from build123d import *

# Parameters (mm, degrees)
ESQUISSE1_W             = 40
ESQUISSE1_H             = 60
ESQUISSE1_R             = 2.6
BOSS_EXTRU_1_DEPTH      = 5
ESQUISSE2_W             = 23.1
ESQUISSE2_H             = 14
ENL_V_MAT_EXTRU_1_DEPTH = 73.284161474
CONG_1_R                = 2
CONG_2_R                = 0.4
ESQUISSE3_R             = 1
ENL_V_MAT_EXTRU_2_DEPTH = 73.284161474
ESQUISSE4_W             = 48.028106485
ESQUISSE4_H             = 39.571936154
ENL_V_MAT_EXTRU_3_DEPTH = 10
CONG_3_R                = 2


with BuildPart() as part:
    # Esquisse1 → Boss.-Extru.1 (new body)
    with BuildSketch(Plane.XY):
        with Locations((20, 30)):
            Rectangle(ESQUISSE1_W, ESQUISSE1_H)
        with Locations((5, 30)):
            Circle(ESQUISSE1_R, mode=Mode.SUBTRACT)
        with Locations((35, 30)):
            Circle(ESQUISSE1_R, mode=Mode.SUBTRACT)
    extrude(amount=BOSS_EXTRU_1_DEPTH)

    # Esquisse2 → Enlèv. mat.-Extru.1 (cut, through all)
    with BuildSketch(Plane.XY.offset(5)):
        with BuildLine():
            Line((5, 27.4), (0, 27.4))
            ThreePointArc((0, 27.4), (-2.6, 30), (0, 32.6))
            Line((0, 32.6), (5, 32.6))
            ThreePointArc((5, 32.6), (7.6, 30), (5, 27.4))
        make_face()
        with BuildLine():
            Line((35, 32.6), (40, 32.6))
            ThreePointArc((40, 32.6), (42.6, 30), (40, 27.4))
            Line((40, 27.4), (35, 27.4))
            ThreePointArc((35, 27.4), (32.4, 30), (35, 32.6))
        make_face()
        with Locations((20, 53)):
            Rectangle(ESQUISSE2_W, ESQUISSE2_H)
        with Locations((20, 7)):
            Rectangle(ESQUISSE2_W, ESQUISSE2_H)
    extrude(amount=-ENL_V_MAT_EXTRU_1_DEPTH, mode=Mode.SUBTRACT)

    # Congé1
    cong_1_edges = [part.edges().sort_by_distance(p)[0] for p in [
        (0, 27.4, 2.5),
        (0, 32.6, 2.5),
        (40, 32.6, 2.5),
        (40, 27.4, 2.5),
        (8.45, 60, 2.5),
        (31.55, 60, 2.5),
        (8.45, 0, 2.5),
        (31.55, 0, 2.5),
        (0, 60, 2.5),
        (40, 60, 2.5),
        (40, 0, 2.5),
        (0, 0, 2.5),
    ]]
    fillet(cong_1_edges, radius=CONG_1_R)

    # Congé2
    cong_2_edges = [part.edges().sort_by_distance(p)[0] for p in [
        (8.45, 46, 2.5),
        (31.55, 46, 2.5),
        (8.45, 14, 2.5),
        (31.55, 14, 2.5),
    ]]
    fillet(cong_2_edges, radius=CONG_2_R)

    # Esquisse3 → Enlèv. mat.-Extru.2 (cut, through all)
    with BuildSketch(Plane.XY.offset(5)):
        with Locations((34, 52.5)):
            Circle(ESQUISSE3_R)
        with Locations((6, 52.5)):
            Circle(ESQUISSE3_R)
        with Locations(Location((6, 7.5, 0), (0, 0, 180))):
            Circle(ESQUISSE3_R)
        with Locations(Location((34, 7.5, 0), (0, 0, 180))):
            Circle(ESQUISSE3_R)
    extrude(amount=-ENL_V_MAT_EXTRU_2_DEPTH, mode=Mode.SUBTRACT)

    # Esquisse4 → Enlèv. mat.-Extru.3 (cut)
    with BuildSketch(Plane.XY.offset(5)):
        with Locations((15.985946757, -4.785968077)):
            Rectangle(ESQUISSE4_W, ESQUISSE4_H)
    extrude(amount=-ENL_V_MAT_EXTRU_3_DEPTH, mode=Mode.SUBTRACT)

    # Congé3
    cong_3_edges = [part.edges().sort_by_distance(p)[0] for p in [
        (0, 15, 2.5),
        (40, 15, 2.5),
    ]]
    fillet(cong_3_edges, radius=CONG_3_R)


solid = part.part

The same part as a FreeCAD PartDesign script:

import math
import FreeCAD as App
import Part
import Sketcher
from FreeCAD import Vector


def edges_at(feature, points):
    """Names of the edges that pass closest to the given points."""
    edges = feature.Shape.Edges
    near = lambda p: min(range(len(edges)), key=lambda i: edges[i].distToShape(Part.Vertex(*p))[0])
    return sorted({f"Edge{near(p) + 1}" for p in points})


def add_polygon(sketch, points):
    """Adds a closed chain of lines whose ends are joined by coincident constraints."""
    first, n = sketch.GeometryCount, len(points)
    for a, b in zip(points, points[1:] + points[:1]):
        sketch.addGeometry(Part.LineSegment(App.Vector(*a, 0), App.Vector(*b, 0)), False)
    for i in range(n):
        sketch.addConstraint(Sketcher.Constraint("Coincident", first + i, 2, first + (i + 1) % n, 1))

doc = App.newDocument("Part")
body = doc.addObject("PartDesign::Body", "Body")

# Sketch on XY plane
sketch1 = body.newObject("Sketcher::SketchObject", "Sketch")
sketch1.AttachmentSupport = (doc.getObject("XY_Plane"), [""])
sketch1.MapMode = "FlatFace"
add_polygon(sketch1, [(0, 60), (0, 0), (40, 0), (40, 60)])  # lines 0-3
sketch1.addGeometry(Part.Circle(Vector(5, 30, 0), Vector(0, 0, 1), 2.6), False)  # 4
sketch1.addGeometry(Part.Circle(Vector(35, 30, 0), Vector(0, 0, 1), 2.6), False)  # 5
sketch1.addConstraint(Sketcher.Constraint("Vertical", 0))
sketch1.addConstraint(Sketcher.Constraint("Horizontal", 1))
sketch1.addConstraint(Sketcher.Constraint("Vertical", 2))
sketch1.addConstraint(Sketcher.Constraint("Horizontal", 3))
sketch1.addConstraint(Sketcher.Constraint("Coincident", 0, 2, -1, 1))
sketch1.addConstraint(Sketcher.Constraint("Equal", 4, 5))
sketch1.addConstraint(Sketcher.Constraint("Horizontal", 4, 3, 5, 3))
sketch1.addConstraint(Sketcher.Constraint("Diameter", 4, 5.2))
sketch1.addConstraint(Sketcher.Constraint("DistanceX", 1, 1, 1, 2, 40.0))
sketch1.addConstraint(Sketcher.Constraint("DistanceY", 0, 2, 0, 1, 60.0))
sketch1.addConstraint(Sketcher.Constraint("DistanceX", -1, 1, 4, 3, 5.0))
sketch1.addConstraint(Sketcher.Constraint("DistanceY", -1, 1, 4, 3, 30.0))
sketch1.addConstraint(Sketcher.Constraint("DistanceX", -1, 1, 5, 3, 35.0))
pad1 = body.newObject("PartDesign::Pad", "Pad")
pad1.Profile = sketch1
pad1.Length = 5

# Sketch on XY plane
sketch2 = body.newObject("Sketcher::SketchObject", "Sketch001")
sketch2.AttachmentSupport = (doc.getObject("XY_Plane"), [""])
sketch2.MapMode = "FlatFace"
sketch2.AttachmentOffset = App.Placement(Vector(0, 0, 5), App.Rotation())
sketch2.addGeometry(Part.LineSegment(Vector(0, 27.4, 0), Vector(5, 27.4, 0)), False)  # 0
sketch2.addGeometry(Part.ArcOfCircle(Part.Circle(Vector(5, 30, 0), Vector(0, 0, 1), 2.6), math.radians(-90), math.radians(90)), False)  # 1
sketch2.addGeometry(Part.LineSegment(Vector(5, 32.6, 0), Vector(0, 32.6, 0)), False)  # 2
sketch2.addGeometry(Part.ArcOfCircle(Part.Circle(Vector(0, 30, 0), Vector(0, 0, 1), 2.6), math.radians(90), math.radians(270)), False)  # 3
sketch2.addGeometry(Part.LineSegment(Vector(40, 32.6, 0), Vector(35, 32.6, 0)), False)  # 4
sketch2.addGeometry(Part.ArcOfCircle(Part.Circle(Vector(35, 30, 0), Vector(0, 0, 1), 2.6), math.radians(90), math.radians(270)), False)  # 5
sketch2.addGeometry(Part.LineSegment(Vector(35, 27.4, 0), Vector(40, 27.4, 0)), False)  # 6
sketch2.addGeometry(Part.ArcOfCircle(Part.Circle(Vector(40, 30, 0), Vector(0, 0, 1), 2.6), math.radians(-90), math.radians(90)), False)  # 7
add_polygon(sketch2, [(8.45, 60), (8.45, 46), (31.55, 46), (31.55, 60)])  # lines 8-11
add_polygon(sketch2, [(8.45, 14), (8.45, 0), (31.55, 0), (31.55, 14)])  # lines 12-15
sketch2.addConstraint(Sketcher.Constraint("Tangent", 0, 2, 1, 1))
sketch2.addConstraint(Sketcher.Constraint("Tangent", 1, 2, 2, 1))
sketch2.addConstraint(Sketcher.Constraint("Tangent", 2, 2, 3, 1))
sketch2.addConstraint(Sketcher.Constraint("Tangent", 3, 2, 0, 1))
sketch2.addConstraint(Sketcher.Constraint("Tangent", 4, 2, 5, 1))
sketch2.addConstraint(Sketcher.Constraint("Tangent", 5, 2, 6, 1))
sketch2.addConstraint(Sketcher.Constraint("Tangent", 6, 2, 7, 1))
sketch2.addConstraint(Sketcher.Constraint("Tangent", 7, 2, 4, 1))
sketch2.addConstraint(Sketcher.Constraint("Horizontal", 0))
sketch2.addConstraint(Sketcher.Constraint("Horizontal", 2))
sketch2.addConstraint(Sketcher.Constraint("Horizontal", 4))
sketch2.addConstraint(Sketcher.Constraint("Horizontal", 6))
sketch2.addConstraint(Sketcher.Constraint("Vertical", 8))
sketch2.addConstraint(Sketcher.Constraint("Horizontal", 9))
sketch2.addConstraint(Sketcher.Constraint("Vertical", 10))
sketch2.addConstraint(Sketcher.Constraint("Horizontal", 11))
sketch2.addConstraint(Sketcher.Constraint("Vertical", 12))
sketch2.addConstraint(Sketcher.Constraint("Horizontal", 13))
sketch2.addConstraint(Sketcher.Constraint("Vertical", 14))
sketch2.addConstraint(Sketcher.Constraint("Horizontal", 15))
sketch2.addConstraint(Sketcher.Constraint("Equal", 3, 5))
sketch2.addConstraint(Sketcher.Constraint("PointOnObject", 3, 3, -2))
sketch2.addConstraint(Sketcher.Constraint("PointOnObject", 12, 2, -1))
sketch2.addConstraint(Sketcher.Constraint("Horizontal", 3, 3, 5, 3))
sketch2.addConstraint(Sketcher.Constraint("Vertical", 11, 2, 12, 2))
sketch2.addConstraint(Sketcher.Constraint("Vertical", 10, 2, 13, 2))
sketch2.addConstraint(Sketcher.Constraint("Equal", 2, 4))
sketch2.addConstraint(Sketcher.Constraint("Equal", 10, 12))
sketch2.addConstraint(Sketcher.Constraint("Radius", 1, 2.6))
sketch2.addConstraint(Sketcher.Constraint("DistanceX", 0, 1, 0, 2, 5.0))
sketch2.addConstraint(Sketcher.Constraint("DistanceY", 8, 2, 8, 1, 14.0))
sketch2.addConstraint(Sketcher.Constraint("DistanceX", 9, 1, 9, 2, 23.1))
sketch2.addConstraint(Sketcher.Constraint("DistanceY", -1, 1, 1, 3, 30.0))
sketch2.addConstraint(Sketcher.Constraint("DistanceX", -1, 1, 5, 3, 35.0))
sketch2.addConstraint(Sketcher.Constraint("DistanceY", -1, 1, 8, 2, 46.0))
sketch2.addConstraint(Sketcher.Constraint("DistanceX", -1, 1, 8, 2, 8.45))
pocket1 = body.newObject("PartDesign::Pocket", "Pocket")
pocket1.Profile = sketch2
pocket1.Type = "ThroughAll"
doc.recompute()

fillet = body.newObject("PartDesign::Fillet", "Fillet")
fillet.Base = (pocket1, edges_at(pocket1, [
    (0, 27.4, 2.5),
    (0, 32.6, 2.5),
    (40, 32.6, 2.5),
    (40, 27.4, 2.5),
    (8.45, 60, 2.5),
    (31.55, 60, 2.5),
    (8.45, 0, 2.5),
    (31.55, 0, 2.5),
    (0, 60, 2.5),
    (40, 60, 2.5),
    (40, 0, 2.5),
    (0, 0, 2.5),
]))
fillet.Radius = 2
doc.recompute()

fillet2 = body.newObject("PartDesign::Fillet", "Fillet001")
fillet2.Base = (fillet, edges_at(fillet, [
    (8.45, 46, 2.5),
    (31.55, 46, 2.5),
    (8.45, 14, 2.5),
    (31.55, 14, 2.5),
]))
fillet2.Radius = 0.4

# Sketch on XY plane
sketch3 = body.newObject("Sketcher::SketchObject", "Sketch002")
sketch3.AttachmentSupport = (doc.getObject("XY_Plane"), [""])
sketch3.MapMode = "FlatFace"
sketch3.AttachmentOffset = App.Placement(Vector(0, 0, 5), App.Rotation())
sketch3.addGeometry(Part.Circle(Vector(34, 52.5, 0), Vector(0, 0, 1), 1), False)
sketch3.addGeometry(Part.Circle(Vector(6, 52.5, 0), Vector(0, 0, 1), 1), False)
sketch3.addGeometry(Part.Circle(Vector(6, 7.5, 0), Vector(0, 0, 1), 1), False)
sketch3.addGeometry(Part.Circle(Vector(34, 7.5, 0), Vector(0, 0, 1), 1), False)
sketch3.addConstraint(Sketcher.Constraint("Equal", 0, 1))
sketch3.addConstraint(Sketcher.Constraint("Equal", 1, 2))
sketch3.addConstraint(Sketcher.Constraint("Equal", 2, 3))
sketch3.addConstraint(Sketcher.Constraint("Horizontal", 0, 3, 1, 3))
sketch3.addConstraint(Sketcher.Constraint("Horizontal", 2, 3, 3, 3))
sketch3.addConstraint(Sketcher.Constraint("Vertical", 1, 3, 2, 3))
sketch3.addConstraint(Sketcher.Constraint("Vertical", 0, 3, 3, 3))
sketch3.addConstraint(Sketcher.Constraint("Diameter", 0, 2.0))
sketch3.addConstraint(Sketcher.Constraint("DistanceX", -1, 1, 0, 3, 34.0))
sketch3.addConstraint(Sketcher.Constraint("DistanceX", -1, 1, 1, 3, 6.0))
sketch3.addConstraint(Sketcher.Constraint("DistanceY", 2, 3, 1, 3, 45.0))
sketch3.addConstraint(Sketcher.Constraint("DistanceY", -1, 1, 0, 3, 52.5))
pocket2 = body.newObject("PartDesign::Pocket", "Pocket001")
pocket2.Profile = sketch3
pocket2.Type = "ThroughAll"

# Sketch on XY plane
sketch4 = body.newObject("Sketcher::SketchObject", "Sketch003")
sketch4.AttachmentSupport = (doc.getObject("XY_Plane"), [""])
sketch4.MapMode = "FlatFace"
sketch4.AttachmentOffset = App.Placement(Vector(0, 0, 5), App.Rotation())
add_polygon(sketch4, [(-8.028106, 15), (-8.028106, -24.571936), (40, -24.571936), (40, 15)])  # lines 0-3
sketch4.addConstraint(Sketcher.Constraint("Vertical", 0))
sketch4.addConstraint(Sketcher.Constraint("Horizontal", 1))
sketch4.addConstraint(Sketcher.Constraint("Vertical", 2))
sketch4.addConstraint(Sketcher.Constraint("Horizontal", 3))
sketch4.addConstraint(Sketcher.Constraint("DistanceX", -1, 1, 1, 2, 40.0))
sketch4.addConstraint(Sketcher.Constraint("DistanceY", -1, 1, 2, 2, 15.0))
sketch4.addConstraint(Sketcher.Constraint("DistanceX", 1, 1, 1, 2, 48.028106))
sketch4.addConstraint(Sketcher.Constraint("DistanceY", 0, 2, 0, 1, 39.571936))
pocket3 = body.newObject("PartDesign::Pocket", "Pocket002")
pocket3.Profile = sketch4
pocket3.Length = 10
doc.recompute()

fillet3 = body.newObject("PartDesign::Fillet", "Fillet002")
fillet3.Base = (pocket3, edges_at(pocket3, [(0, 15, 2.5), (40, 15, 2.5)]))
fillet3.Radius = 2

doc.recompute()
